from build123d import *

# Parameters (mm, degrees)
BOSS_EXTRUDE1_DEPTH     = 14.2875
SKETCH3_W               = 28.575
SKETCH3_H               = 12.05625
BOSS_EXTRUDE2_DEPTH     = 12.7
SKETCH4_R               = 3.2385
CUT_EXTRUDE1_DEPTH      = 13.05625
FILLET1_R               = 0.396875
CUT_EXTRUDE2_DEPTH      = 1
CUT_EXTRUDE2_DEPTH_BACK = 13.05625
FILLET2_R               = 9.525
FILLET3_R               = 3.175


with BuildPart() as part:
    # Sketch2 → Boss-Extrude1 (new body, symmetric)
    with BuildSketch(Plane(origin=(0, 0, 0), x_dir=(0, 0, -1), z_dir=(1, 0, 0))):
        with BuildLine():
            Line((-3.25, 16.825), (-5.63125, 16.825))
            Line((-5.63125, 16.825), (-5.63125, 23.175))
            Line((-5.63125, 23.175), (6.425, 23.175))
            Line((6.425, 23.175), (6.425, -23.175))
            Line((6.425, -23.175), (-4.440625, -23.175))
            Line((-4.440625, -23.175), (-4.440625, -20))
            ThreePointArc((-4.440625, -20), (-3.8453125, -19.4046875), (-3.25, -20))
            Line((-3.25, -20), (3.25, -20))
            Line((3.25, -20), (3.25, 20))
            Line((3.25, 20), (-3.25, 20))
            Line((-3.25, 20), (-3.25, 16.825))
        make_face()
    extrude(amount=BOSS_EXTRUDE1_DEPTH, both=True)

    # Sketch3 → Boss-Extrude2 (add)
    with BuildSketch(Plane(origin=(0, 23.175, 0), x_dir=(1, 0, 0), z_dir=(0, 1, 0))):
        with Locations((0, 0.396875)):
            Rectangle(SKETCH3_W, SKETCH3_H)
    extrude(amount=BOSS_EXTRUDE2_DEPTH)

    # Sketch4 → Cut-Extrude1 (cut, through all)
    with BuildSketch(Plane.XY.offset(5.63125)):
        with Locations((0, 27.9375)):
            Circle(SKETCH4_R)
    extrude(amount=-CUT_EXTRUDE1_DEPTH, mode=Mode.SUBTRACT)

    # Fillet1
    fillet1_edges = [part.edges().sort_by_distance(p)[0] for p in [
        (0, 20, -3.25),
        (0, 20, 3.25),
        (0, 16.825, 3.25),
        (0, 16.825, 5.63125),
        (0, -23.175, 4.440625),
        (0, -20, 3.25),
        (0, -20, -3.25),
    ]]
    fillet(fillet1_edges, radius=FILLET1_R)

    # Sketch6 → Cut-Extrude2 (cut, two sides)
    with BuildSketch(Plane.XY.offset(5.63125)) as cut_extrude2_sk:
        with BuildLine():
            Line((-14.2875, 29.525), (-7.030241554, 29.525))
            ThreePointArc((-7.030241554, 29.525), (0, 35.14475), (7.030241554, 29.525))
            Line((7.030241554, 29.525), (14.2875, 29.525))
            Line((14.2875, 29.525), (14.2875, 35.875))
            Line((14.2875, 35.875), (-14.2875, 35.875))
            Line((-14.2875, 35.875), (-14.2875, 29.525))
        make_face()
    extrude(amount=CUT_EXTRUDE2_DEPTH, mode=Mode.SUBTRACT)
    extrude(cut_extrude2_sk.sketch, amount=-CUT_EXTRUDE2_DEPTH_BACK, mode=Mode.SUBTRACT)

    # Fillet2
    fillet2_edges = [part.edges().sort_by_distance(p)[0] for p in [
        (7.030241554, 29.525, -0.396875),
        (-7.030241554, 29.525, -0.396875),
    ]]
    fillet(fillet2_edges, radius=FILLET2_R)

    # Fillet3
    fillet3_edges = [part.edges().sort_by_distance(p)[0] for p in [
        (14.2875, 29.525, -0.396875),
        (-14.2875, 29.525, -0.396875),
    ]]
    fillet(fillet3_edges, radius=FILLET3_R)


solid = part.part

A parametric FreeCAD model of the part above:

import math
import FreeCAD as App
import Part
import Sketcher

V = App.Vector
Q = App.Units.Quantity


def edges_at(feature, points):
    """Names of the edges that pass closest to the given points."""
    edges = feature.Shape.Edges
    near = lambda p: min(range(len(edges)), key=lambda i: edges[i].distToShape(Part.Vertex(*p))[0])
    return sorted({f"Edge{near(p) + 1}" for p in points})

doc = App.newDocument("Part")
params = doc.addObject("Spreadsheet::Sheet", "Params")
for row, (alias, value) in enumerate([
    ("sketch1_width", "0.25 in"),
    ("sketch1_width2", "0.125 in"),
    ("sketch1_height", "0.09375 in"),
    ("pad1_length", "1.125 in"),
    ("sketch2_width", "1.125 in"),
    ("pad2_length", "0.5 in"),
    ("sketch3_diameter", "0.255 in"),
    ("fillet_radius", "0.015625 in"),
    ("sketch4_height", "0.25 in"),
    ("sketch4_width", "1.125 in"),
    ("fillet2_radius", "0.375 in"),
    ("fillet3_radius", "0.125 in"),
], start=1):
    params.set(f"A{row}", alias)
    params.set(f"B{row}", "=" + value)
    params.setAlias(f"B{row}", alias)

body = doc.addObject("PartDesign::Body", "Body")

sketch1 = body.newObject("Sketcher::SketchObject", "Sketch")
sketch1.AttachmentSupport = (doc.getObject("YZ_Plane"), [""])
sketch1.MapMode = "FlatFace"
sketch1.addGeometry([
    Part.LineSegment(V(16.8, 5.6, 0), V(16.8, 3.2, 0)),
    Part.LineSegment(V(16.8, 3.2, 0), V(20, 3.2, 0)),
    Part.LineSegment(V(20, 3.2, 0), V(20, -3.2, 0)),
    Part.LineSegment(V(20, -3.2, 0), V(-20, -3.2, 0)),
    Part.LineSegment(V(-20, -3.2, 0), V(-20, 3.2, 0)),
    Part.ArcOfCircle(Part.Circle(V(-20, 3.8, 0), V(0, 0, 1), 0.6), math.radians(-90), math.radians(90)),
    Part.LineSegment(V(-20, 4.4, 0), V(-23.2, 4.4, 0)),
    Part.LineSegment(V(-23.2, 4.4, 0), V(-23.2, -6.4, 0)),
    Part.LineSegment(V(-23.2, -6.4, 0), V(23.2, -6.4, 0)),
    Part.LineSegment(V(23.2, -6.4, 0), V(23.2, 5.6, 0)),
    Part.LineSegment(V(23.2, 5.6, 0), V(16.8, 5.6, 0)),
], False)
sketch1.addConstraint([
    Sketcher.Constraint("Coincident", 0, 2, 1, 1),
    Sketcher.Constraint("Coincident", 1, 2, 2, 1),
    Sketcher.Constraint("Coincident", 2, 2, 3, 1),
    Sketcher.Constraint("Coincident", 3, 2, 4, 1),
    Sketcher.Constraint("Coincident", 4, 2, 5, 1),
    Sketcher.Constraint("Tangent", 5, 2, 6, 1),
    Sketcher.Constraint("Coincident", 6, 2, 7, 1),
    Sketcher.Constraint("Coincident", 7, 2, 8, 1),
    Sketcher.Constraint("Coincident", 8, 2, 9, 1),
    Sketcher.Constraint("Coincident", 9, 2, 10, 1),
    Sketcher.Constraint("Coincident", 10, 2, 0, 1),
    Sketcher.Constraint("Vertical", 0),
    Sketcher.Constraint("Horizontal", 1),
    Sketcher.Constraint("Vertical", 2),
    Sketcher.Constraint("Horizontal", 3),
    Sketcher.Constraint("Vertical", 4),
    Sketcher.Constraint("Horizontal", 6),
    Sketcher.Constraint("Vertical", 7),
    Sketcher.Constraint("Horizontal", 8),
    Sketcher.Constraint("Vertical", 9),
    Sketcher.Constraint("Horizontal", 10),
    Sketcher.Constraint("Symmetric", 1, 2, 3, 2, -1, 1),
    Sketcher.Constraint("Horizontal", 1, 2, 4, 2),
    Sketcher.Constraint("Vertical", 5, 3, 3, 2),
    Sketcher.Constraint("Equal", 1, 6),
    Sketcher.Constraint("DistanceX", 10, 2, 10, 1, Q("0.25 in")),
    Sketcher.Constraint("DistanceX", 1, 1, 1, 2, Q("0.125 in")),
    Sketcher.Constraint("DistanceY", 0, 2, 0, 1, Q("0.09375 in")),
    Sketcher.Constraint("DistanceY", 4, 2, 5, 2, Q("0.046875 in")),
    Sketcher.Constraint("DistanceY", 7, 2, 3, 2, Q("0.125 in")),
    Sketcher.Constraint("DistanceX", 3, 2, 3, 1, 40.0),
    Sketcher.Constraint("DistanceY", 2, 2, 2, 1, 6.5),
])
sketch1.setExpression("Constraints[25]", "Params.sketch1_width")
sketch1.setExpression("Constraints[26]", "Params.sketch1_width2")
sketch1.setExpression("Constraints[27]", "Params.sketch1_height")
pad1 = body.newObject("PartDesign::Pad", "Pad")
pad1.Profile = sketch1
pad1.setExpression("Length", "Params.pad1_length")
pad1.Midplane = True

sketch2 = body.newObject("Sketcher::SketchObject", "Sketch001")
sketch2.AttachmentSupport = (doc.getObject("XZ_Plane"), [""])
sketch2.MapMode = "FlatFace"
sketch2.AttachmentOffset = App.Placement(V(0, 0, -23.175), App.Rotation())
sketch2.addGeometry([
    Part.LineSegment(V(-14, -6, 0), V(-14, 6, 0)),
    Part.LineSegment(V(-14, 6, 0), V(14, 6, 0)),
    Part.LineSegment(V(14, 6, 0), V(14, -6, 0)),
    Part.LineSegment(V(14, -6, 0), V(-14, -6, 0)),
], False)
sketch2.addConstraint([
    Sketcher.Constraint("Coincident", 0, 2, 1, 1),
    Sketcher.Constraint("Coincident", 1, 2, 2, 1),
    Sketcher.Constraint("Coincident", 2, 2, 3, 1),
    Sketcher.Constraint("Coincident", 3, 2, 0, 1),
    Sketcher.Constraint("Vertical", 0),
    Sketcher.Constraint("Horizontal", 1),
    Sketcher.Constraint("Vertical", 2),
    Sketcher.Constraint("Horizontal", 3),
    Sketcher.Constraint("DistanceX", 1, 1, 1, 2, Q("1.125 in")),
    Sketcher.Constraint("DistanceX", 0, 2, -1, 1, Q("0.5625 in")),
    Sketcher.Constraint("DistanceY", 0, 1, 0, 2, 12.05625),
    Sketcher.Constraint("DistanceY", 2, 2, -1, 1, 6.425),
])
sketch2.setExpression("Constraints[8]", "Params.sketch2_width")
pad2 = body.newObject("PartDesign::Pad", "Pad001")
pad2.Profile = sketch2
pad2.setExpression("Length", "Params.pad2_length")
pad2.Reversed = True

sketch3 = body.newObject("Sketcher::SketchObject", "Sketch002")
sketch3.AttachmentSupport = (doc.getObject("XY_Plane"), [""])
sketch3.MapMode = "FlatFace"
sketch3.AttachmentOffset = App.Placement(V(0, 0, 5.63125), App.Rotation())
sketch3.addGeometry(Part.Circle(V(0, 27.9, 0), V(0, 0, 1), 3.2), False)
sketch3.addConstraint([
    Sketcher.Constraint("PointOnObject", 0, 3, -2),
    Sketcher.Constraint("Diameter", 0, Q("0.255 in")),
    Sketcher.Constraint("DistanceY", -1, 1, 0, 3, 27.9375),
])
sketch3.setExpression("Constraints[1]", "Params.sketch3_diameter")
pocket1 = body.newObject("PartDesign::Pocket", "Pocket")
pocket1.Profile = sketch3
pocket1.Type = "ThroughAll"
doc.recompute()

fillet = body.newObject("PartDesign::Fillet", "Fillet")
fillet.Base = (pocket1, edges_at(pocket1, [
    (0, 20, -3.25),
    (0, 20, 3.25),
    (0, 16.825, 3.25),
    (0, 16.825, 5.631),
    (0, -23.175, 4.441),
    (0, -20, 3.25),
    (0, -20, -3.25),
]))
fillet.setExpression("Radius", "Params.fillet_radius")

sketch4 = body.newObject("Sketcher::SketchObject", "Sketch003")
sketch4.AttachmentSupport = (doc.getObject("XY_Plane"), [""])
sketch4.MapMode = "FlatFace"
sketch4.AttachmentOffset = App.Placement(V(0, 0, 5.63125), App.Rotation())
sketch4.addGeometry([
    Part.LineSegment(V(-14, 30, 0), V(-7, 30, 0)),
    Part.ArcOfCircle(Part.Circle(V(0, 28, 0), V(0, 0, 1), 7), math.radians(13), math.radians(167)),
    Part.LineSegment(V(7, 30, 0), V(14, 30, 0)),
    Part.LineSegment(V(14, 30, 0), V(14, 36, 0)),
    Part.LineSegment(V(14, 36, 0), V(-14, 36, 0)),
    Part.LineSegment(V(-14, 36, 0), V(-14, 30, 0)),
], False)
sketch4.addConstraint([
    Sketcher.Constraint("Coincident", 0, 2, 1, 2),
    Sketcher.Constraint("Coincident", 1, 1, 2, 1),
    Sketcher.Constraint("Coincident", 2, 2, 3, 1),
    Sketcher.Constraint("Coincident", 3, 2, 4, 1),
    Sketcher.Constraint("Coincident", 4, 2, 5, 1),
    Sketcher.Constraint("Coincident", 5, 2, 0, 1),
    Sketcher.Constraint("Horizontal", 0),
    Sketcher.Constraint("Horizontal", 2),
    Sketcher.Constraint("Vertical", 3),
    Sketcher.Constraint("Horizontal", 4),
    Sketcher.Constraint("Vertical", 5),
    Sketcher.Constraint("Symmetric", 0, 2, 1, 1, -2),
    Sketcher.Constraint("Equal", 0, 2),
    Sketcher.Constraint("DistanceY", 3, 1, 3, 2, Q("0.25 in")),
    Sketcher.Constraint("DistanceX", 4, 2, 4, 1, Q("1.125 in")),
    Sketcher.Constraint("Radius", 1, 7.20725),
    Sketcher.Constraint("DistanceY", 1, 3, 0, 2, Q("0.0625 in")),
    Sketcher.Constraint("DistanceY", -1, 1, 1, 3, 27.9375),
])
sketch4.setExpression("Constraints[13]", "Params.sketch4_height")
sketch4.setExpression("Constraints[14]", "Params.sketch4_width")
pocket2 = body.newObject("PartDesign::Pocket", "Pocket001")
pocket2.Profile = sketch4
pocket2.Type = "ThroughAll"
pocket2.Midplane = True
doc.recompute()

fillet2 = body.newObject("PartDesign::Fillet", "Fillet001")
fillet2.Base = (pocket2, edges_at(pocket2, [(7.03, 29.525, -0.397), (-7.03, 29.525, -0.397)]))
fillet2.setExpression("Radius", "Params.fillet2_radius")
doc.recompute()

fillet3 = body.newObject("PartDesign::Fillet", "Fillet002")
fillet3.Base = (fillet2, edges_at(fillet2, [(14.287, 29.525, -0.397), (-14.287, 29.525, -0.397)]))
fillet3.setExpression("Radius", "Params.fillet3_radius")

doc.recompute()
